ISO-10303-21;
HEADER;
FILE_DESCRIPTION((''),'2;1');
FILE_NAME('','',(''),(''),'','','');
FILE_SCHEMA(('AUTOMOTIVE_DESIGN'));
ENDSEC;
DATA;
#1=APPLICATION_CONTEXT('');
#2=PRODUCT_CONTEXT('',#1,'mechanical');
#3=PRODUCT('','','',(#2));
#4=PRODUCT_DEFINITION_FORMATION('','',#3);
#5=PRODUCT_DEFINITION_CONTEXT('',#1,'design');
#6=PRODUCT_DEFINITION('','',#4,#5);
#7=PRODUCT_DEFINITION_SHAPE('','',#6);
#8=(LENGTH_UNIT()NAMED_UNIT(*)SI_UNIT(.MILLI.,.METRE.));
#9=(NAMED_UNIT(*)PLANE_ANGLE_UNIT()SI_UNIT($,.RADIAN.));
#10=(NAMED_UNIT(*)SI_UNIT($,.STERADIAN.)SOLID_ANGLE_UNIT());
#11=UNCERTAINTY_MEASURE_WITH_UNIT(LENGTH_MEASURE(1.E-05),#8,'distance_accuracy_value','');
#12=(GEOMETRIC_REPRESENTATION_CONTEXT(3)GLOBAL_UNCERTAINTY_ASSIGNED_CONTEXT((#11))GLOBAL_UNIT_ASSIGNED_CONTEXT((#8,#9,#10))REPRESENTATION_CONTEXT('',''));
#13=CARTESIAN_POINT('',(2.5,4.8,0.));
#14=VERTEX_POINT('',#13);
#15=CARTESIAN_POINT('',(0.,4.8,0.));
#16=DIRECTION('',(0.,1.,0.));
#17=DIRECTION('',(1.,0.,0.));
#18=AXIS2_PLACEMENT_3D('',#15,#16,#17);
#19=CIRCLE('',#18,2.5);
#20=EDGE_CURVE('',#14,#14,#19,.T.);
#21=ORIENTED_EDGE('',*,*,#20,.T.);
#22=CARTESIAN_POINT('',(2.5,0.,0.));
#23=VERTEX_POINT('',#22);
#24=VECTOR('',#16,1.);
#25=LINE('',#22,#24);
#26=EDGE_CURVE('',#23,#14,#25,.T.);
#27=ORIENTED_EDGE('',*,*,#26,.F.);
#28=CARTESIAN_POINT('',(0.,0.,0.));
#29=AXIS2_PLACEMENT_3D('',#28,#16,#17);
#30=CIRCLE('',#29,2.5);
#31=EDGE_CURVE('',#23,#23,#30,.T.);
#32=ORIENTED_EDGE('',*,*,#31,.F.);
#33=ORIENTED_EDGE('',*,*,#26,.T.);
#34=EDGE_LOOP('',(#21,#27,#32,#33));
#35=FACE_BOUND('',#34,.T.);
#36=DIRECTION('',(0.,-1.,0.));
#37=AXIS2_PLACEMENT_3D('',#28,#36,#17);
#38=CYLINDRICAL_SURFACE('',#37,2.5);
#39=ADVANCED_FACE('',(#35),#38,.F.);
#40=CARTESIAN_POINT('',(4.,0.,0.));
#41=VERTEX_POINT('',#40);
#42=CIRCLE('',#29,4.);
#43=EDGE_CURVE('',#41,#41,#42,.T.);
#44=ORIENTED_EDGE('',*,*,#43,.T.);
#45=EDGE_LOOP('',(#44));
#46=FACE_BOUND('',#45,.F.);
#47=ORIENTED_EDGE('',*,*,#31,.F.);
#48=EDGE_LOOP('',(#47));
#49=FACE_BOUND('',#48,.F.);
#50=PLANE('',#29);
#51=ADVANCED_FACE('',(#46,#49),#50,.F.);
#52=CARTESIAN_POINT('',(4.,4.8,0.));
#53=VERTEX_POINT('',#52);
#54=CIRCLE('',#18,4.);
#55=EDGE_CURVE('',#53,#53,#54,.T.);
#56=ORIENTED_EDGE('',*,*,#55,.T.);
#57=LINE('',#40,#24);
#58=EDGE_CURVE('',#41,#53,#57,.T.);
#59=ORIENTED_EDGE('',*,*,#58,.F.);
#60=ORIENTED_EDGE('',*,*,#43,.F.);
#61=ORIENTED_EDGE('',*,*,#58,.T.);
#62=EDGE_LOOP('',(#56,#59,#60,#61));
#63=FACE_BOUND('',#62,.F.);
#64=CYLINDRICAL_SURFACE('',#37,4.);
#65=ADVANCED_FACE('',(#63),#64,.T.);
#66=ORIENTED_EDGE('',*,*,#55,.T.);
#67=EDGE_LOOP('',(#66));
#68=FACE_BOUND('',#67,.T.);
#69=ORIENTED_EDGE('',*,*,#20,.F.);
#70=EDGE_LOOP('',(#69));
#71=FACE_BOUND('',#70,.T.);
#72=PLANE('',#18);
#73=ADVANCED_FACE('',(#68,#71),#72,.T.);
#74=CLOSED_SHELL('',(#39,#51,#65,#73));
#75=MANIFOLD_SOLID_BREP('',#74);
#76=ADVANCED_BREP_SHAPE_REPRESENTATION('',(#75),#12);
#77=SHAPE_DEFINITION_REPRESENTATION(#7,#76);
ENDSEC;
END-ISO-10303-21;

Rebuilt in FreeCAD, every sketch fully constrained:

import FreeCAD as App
import Part
import Sketcher

doc = App.newDocument("Part")
body = doc.addObject("PartDesign::Body", "Body")

# Sketch on XZ plane
sketch1 = body.newObject("Sketcher::SketchObject", "Sketch")
sketch1.AttachmentSupport = (doc.getObject("XZ_Plane"), [""])
sketch1.MapMode = "FlatFace"
sketch1.addGeometry(Part.Circle(App.Vector(0, 0, 0), App.Vector(0, 0, 1), 4), False)
sketch1.addGeometry(Part.Circle(App.Vector(0, 0, 0), App.Vector(0, 0, 1), 2.5), False)
sketch1.addConstraint(Sketcher.Constraint("Coincident", 0, 3, -1, 1))
sketch1.addConstraint(Sketcher.Constraint("Coincident", 1, 3, -1, 1))
sketch1.addConstraint(Sketcher.Constraint("Diameter", 0, 8.0))
sketch1.addConstraint(Sketcher.Constraint("Diameter", 1, 5.0))
pad1 = body.newObject("PartDesign::Pad", "Pad")
pad1.Profile = sketch1
pad1.Length = 4.8
pad1.Reversed = True

doc.recompute()
